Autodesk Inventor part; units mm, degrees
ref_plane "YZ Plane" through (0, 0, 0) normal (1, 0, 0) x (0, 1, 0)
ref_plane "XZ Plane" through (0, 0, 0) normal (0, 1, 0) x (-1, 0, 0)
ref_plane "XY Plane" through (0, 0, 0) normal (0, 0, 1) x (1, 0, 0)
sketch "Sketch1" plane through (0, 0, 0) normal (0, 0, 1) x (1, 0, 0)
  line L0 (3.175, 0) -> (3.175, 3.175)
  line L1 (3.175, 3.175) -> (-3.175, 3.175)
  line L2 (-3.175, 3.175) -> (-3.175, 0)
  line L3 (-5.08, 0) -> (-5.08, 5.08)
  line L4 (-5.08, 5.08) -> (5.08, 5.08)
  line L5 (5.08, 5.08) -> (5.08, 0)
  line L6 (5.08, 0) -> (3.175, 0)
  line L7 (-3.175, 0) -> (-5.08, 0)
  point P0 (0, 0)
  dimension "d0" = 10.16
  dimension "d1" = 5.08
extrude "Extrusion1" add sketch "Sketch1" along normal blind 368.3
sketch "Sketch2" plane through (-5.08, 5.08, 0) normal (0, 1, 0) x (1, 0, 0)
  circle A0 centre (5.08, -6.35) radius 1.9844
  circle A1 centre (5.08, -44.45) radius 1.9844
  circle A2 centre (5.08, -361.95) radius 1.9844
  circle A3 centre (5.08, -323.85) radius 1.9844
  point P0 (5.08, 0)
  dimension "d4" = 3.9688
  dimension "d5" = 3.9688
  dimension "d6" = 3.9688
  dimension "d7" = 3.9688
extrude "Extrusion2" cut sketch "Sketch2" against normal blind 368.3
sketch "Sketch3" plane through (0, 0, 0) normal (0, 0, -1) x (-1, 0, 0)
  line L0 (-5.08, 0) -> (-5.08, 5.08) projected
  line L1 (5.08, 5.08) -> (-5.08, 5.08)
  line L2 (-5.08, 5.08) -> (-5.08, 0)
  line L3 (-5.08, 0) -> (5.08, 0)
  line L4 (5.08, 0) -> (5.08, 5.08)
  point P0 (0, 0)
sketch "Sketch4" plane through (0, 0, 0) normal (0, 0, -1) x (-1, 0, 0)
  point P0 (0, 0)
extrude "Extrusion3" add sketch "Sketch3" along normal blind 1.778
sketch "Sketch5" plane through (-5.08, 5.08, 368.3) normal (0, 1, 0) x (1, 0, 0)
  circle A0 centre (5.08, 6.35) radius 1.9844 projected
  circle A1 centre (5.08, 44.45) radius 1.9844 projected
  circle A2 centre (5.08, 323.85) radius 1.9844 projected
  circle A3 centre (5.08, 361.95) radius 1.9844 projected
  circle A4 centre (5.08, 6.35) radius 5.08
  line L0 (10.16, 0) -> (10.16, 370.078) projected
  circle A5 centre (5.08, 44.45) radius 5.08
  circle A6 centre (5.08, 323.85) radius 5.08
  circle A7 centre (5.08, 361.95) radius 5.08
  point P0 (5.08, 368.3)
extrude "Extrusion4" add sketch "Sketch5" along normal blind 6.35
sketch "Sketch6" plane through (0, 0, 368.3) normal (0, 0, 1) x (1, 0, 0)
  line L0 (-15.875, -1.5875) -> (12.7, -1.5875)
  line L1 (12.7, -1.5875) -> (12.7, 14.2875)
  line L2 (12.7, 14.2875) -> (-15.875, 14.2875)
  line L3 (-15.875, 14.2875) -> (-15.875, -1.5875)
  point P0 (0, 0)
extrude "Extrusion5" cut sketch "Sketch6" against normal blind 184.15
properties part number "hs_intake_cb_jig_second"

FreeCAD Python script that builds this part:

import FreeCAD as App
import Part
import Sketcher
Q = App.Units.Quantity

doc = App.newDocument("Part")
body = doc.addObject("PartDesign::Body", "Body")

# Sketch on XY plane
sketch1 = body.newObject("Sketcher::SketchObject", "Sketch")
sketch1.AttachmentSupport = (doc.getObject("XY_Plane"), [""])
sketch1.MapMode = "FlatFace"
sketch1.addGeometry(Part.LineSegment(App.Vector(3.2, 3.2, 0), App.Vector(3.2, 0, 0)), False)
sketch1.addGeometry(Part.LineSegment(App.Vector(3.2, 0, 0), App.Vector(5.1, 0, 0)), False)
sketch1.addGeometry(Part.LineSegment(App.Vector(5.1, 0, 0), App.Vector(5.1, 5.1, 0)), False)
sketch1.addGeometry(Part.LineSegment(App.Vector(5.1, 5.1, 0), App.Vector(-5.1, 5.1, 0)), False)
sketch1.addGeometry(Part.LineSegment(App.Vector(-5.1, 5.1, 0), App.Vector(-5.1, 0, 0)), False)
sketch1.addGeometry(Part.LineSegment(App.Vector(-5.1, 0, 0), App.Vector(-3.2, 0, 0)), False)
sketch1.addGeometry(Part.LineSegment(App.Vector(-3.2, 0, 0), App.Vector(-3.2, 3.2, 0)), False)
sketch1.addGeometry(Part.LineSegment(App.Vector(-3.2, 3.2, 0), App.Vector(3.2, 3.2, 0)), False)
sketch1.addConstraint(Sketcher.Constraint("Coincident", 0, 2, 1, 1))
sketch1.addConstraint(Sketcher.Constraint("Coincident", 1, 2, 2, 1))
sketch1.addConstraint(Sketcher.Constraint("Coincident", 2, 2, 3, 1))
sketch1.addConstraint(Sketcher.Constraint("Coincident", 3, 2, 4, 1))
sketch1.addConstraint(Sketcher.Constraint("Coincident", 4, 2, 5, 1))
sketch1.addConstraint(Sketcher.Constraint("Coincident", 5, 2, 6, 1))
sketch1.addConstraint(Sketcher.Constraint("Coincident", 6, 2, 7, 1))
sketch1.addConstraint(Sketcher.Constraint("Coincident", 7, 2, 0, 1))
sketch1.addConstraint(Sketcher.Constraint("Vertical", 0))
sketch1.addConstraint(Sketcher.Constraint("Horizontal", 1))
sketch1.addConstraint(Sketcher.Constraint("Vertical", 2))
sketch1.addConstraint(Sketcher.Constraint("Horizontal", 3))
sketch1.addConstraint(Sketcher.Constraint("Vertical", 4))
sketch1.addConstraint(Sketcher.Constraint("Horizontal", 5))
sketch1.addConstraint(Sketcher.Constraint("Vertical", 6))
sketch1.addConstraint(Sketcher.Constraint("Horizontal", 7))
sketch1.addConstraint(Sketcher.Constraint("Symmetric", 1, 2, 4, 2, -1, 1))
sketch1.addConstraint(Sketcher.Constraint("Symmetric", 0, 2, 5, 2, -2))
sketch1.addConstraint(Sketcher.Constraint("DistanceX", 3, 2, 3, 1, Q("0.4 in")))
sketch1.addConstraint(Sketcher.Constraint("DistanceY", 2, 1, 2, 2, Q("0.2 in")))
sketch1.addConstraint(Sketcher.Constraint("DistanceX", 7, 1, 7, 2, Q("0.25 in")))
sketch1.addConstraint(Sketcher.Constraint("DistanceY", 0, 2, 0, 1, Q("0.125 in")))
pad1 = body.newObject("PartDesign::Pad", "Pad")
pad1.Profile = sketch1
pad1.Length = Q("14.5 in")

# Sketch on XZ plane
sketch2 = body.newObject("Sketcher::SketchObject", "Sketch001")
sketch2.AttachmentSupport = (doc.getObject("XZ_Plane"), [""])
sketch2.MapMode = "FlatFace"
sketch2.AttachmentOffset = App.Placement(App.Vector(0, 0, -0.2 * 25.4), App.Rotation())
sketch2.addGeometry(Part.Circle(App.Vector(0, 6.3, 0), App.Vector(0, 0, 1), 2), False)
sketch2.addGeometry(Part.Circle(App.Vector(0, 44.5, 0), App.Vector(0, 0, 1), 2), False)
sketch2.addGeometry(Part.Circle(App.Vector(0, 361.9, 0), App.Vector(0, 0, 1), 2), False)
sketch2.addGeometry(Part.Circle(App.Vector(0, 323.9, 0), App.Vector(0, 0, 1), 2), False)
sketch2.addConstraint(Sketcher.Constraint("Equal", 0, 1))
sketch2.addConstraint(Sketcher.Constraint("Equal", 1, 2))
sketch2.addConstraint(Sketcher.Constraint("Equal", 2, 3))
sketch2.addConstraint(Sketcher.Constraint("PointOnObject", 0, 3, -2))
sketch2.addConstraint(Sketcher.Constraint("PointOnObject", 1, 3, -2))
sketch2.addConstraint(Sketcher.Constraint("PointOnObject", 2, 3, -2))
sketch2.addConstraint(Sketcher.Constraint("PointOnObject", 3, 3, -2))
sketch2.addConstraint(Sketcher.Constraint("Diameter", 0, Q("0.156252 in")))
sketch2.addConstraint(Sketcher.Constraint("DistanceY", 0, 3, 2, 3, Q("14 in")))
sketch2.addConstraint(Sketcher.Constraint("DistanceY", 1, 3, 3, 3, Q("11 in")))
sketch2.addConstraint(Sketcher.Constraint("DistanceY", 0, 3, 1, 3, Q("1.5 in")))
sketch2.addConstraint(Sketcher.Constraint("DistanceY", -1, 1, 0, 3, Q("0.25 in")))
pocket1 = body.newObject("PartDesign::Pocket", "Pocket")
pocket1.Profile = sketch2
pocket1.Length = Q("14.5 in")
pocket1.Reversed = True

# Sketch on XY plane
sketch3 = body.newObject("Sketcher::SketchObject", "Sketch002")
sketch3.AttachmentSupport = (doc.getObject("XY_Plane"), [""])
sketch3.MapMode = "FlatFace"
sketch3.addGeometry(Part.LineSegment(App.Vector(5, 5, 0), App.Vector(5, 0, 0)), False)
sketch3.addGeometry(Part.LineSegment(App.Vector(5, 0, 0), App.Vector(-5, 0, 0)), False)
sketch3.addGeometry(Part.LineSegment(App.Vector(-5, 0, 0), App.Vector(-5, 5, 0)), False)
sketch3.addGeometry(Part.LineSegment(App.Vector(-5, 5, 0), App.Vector(5, 5, 0)), False)
sketch3.addConstraint(Sketcher.Constraint("Coincident", 0, 2, 1, 1))
sketch3.addConstraint(Sketcher.Constraint("Coincident", 1, 2, 2, 1))
sketch3.addConstraint(Sketcher.Constraint("Coincident", 2, 2, 3, 1))
sketch3.addConstraint(Sketcher.Constraint("Coincident", 3, 2, 0, 1))
sketch3.addConstraint(Sketcher.Constraint("Vertical", 0))
sketch3.addConstraint(Sketcher.Constraint("Horizontal", 1))
sketch3.addConstraint(Sketcher.Constraint("Vertical", 2))
sketch3.addConstraint(Sketcher.Constraint("Horizontal", 3))
sketch3.addConstraint(Sketcher.Constraint("Symmetric", 0, 2, 1, 2, -1, 1))
sketch3.addConstraint(Sketcher.Constraint("DistanceX", 1, 2, 1, 1, Q("0.4 in")))
sketch3.addConstraint(Sketcher.Constraint("DistanceY", 0, 2, 0, 1, Q("0.2 in")))
pad2 = body.newObject("PartDesign::Pad", "Pad001")
pad2.Profile = sketch3
pad2.Length = Q("0.07 in")
pad2.Reversed = True

# Sketch on XZ plane
sketch4 = body.newObject("Sketcher::SketchObject", "Sketch003")
sketch4.AttachmentSupport = (doc.getObject("XZ_Plane"), [""])
sketch4.MapMode = "FlatFace"
sketch4.AttachmentOffset = App.Placement(App.Vector(0, 0, -0.2 * 25.4), App.Rotation())
sketch4.addGeometry(Part.Circle(App.Vector(0, 361.9, 0), App.Vector(0, 0, 1), 5.1), False)
sketch4.addGeometry(Part.Circle(App.Vector(0, 361.9, 0), App.Vector(0, 0, 1), 2), False)
sketch4.addGeometry(Part.Circle(App.Vector(0, 323.9, 0), App.Vector(0, 0, 1), 5.1), False)
sketch4.addGeometry(Part.Circle(App.Vector(0, 323.9, 0), App.Vector(0, 0, 1), 2), False)
sketch4.addGeometry(Part.Circle(App.Vector(0, 44.5, 0), App.Vector(0, 0, 1), 5.1), False)
sketch4.addGeometry(Part.Circle(App.Vector(0, 44.5, 0), App.Vector(0, 0, 1), 2), False)
sketch4.addGeometry(Part.Circle(App.Vector(0, 6.3, 0), App.Vector(0, 0, 1), 5.1), False)
sketch4.addGeometry(Part.Circle(App.Vector(0, 6.3, 0), App.Vector(0, 0, 1), 2), False)
sketch4.addConstraint(Sketcher.Constraint("Coincident", 1, 3, 0, 3))
sketch4.addConstraint(Sketcher.Constraint("Coincident", 3, 3, 2, 3))
sketch4.addConstraint(Sketcher.Constraint("Coincident", 5, 3, 4, 3))
sketch4.addConstraint(Sketcher.Constraint("Coincident", 7, 3, 6, 3))
sketch4.addConstraint(Sketcher.Constraint("Equal", 0, 2))
sketch4.addConstraint(Sketcher.Constraint("Equal", 1, 3))
sketch4.addConstraint(Sketcher.Constraint("Equal", 2, 4))
sketch4.addConstraint(Sketcher.Constraint("Equal", 3, 5))
sketch4.addConstraint(Sketcher.Constraint("Equal", 4, 6))
sketch4.addConstraint(Sketcher.Constraint("Equal", 5, 7))
sketch4.addConstraint(Sketcher.Constraint("PointOnObject", 0, 3, -2))
sketch4.addConstraint(Sketcher.Constraint("PointOnObject", 2, 3, -2))
sketch4.addConstraint(Sketcher.Constraint("PointOnObject", 4, 3, -2))
sketch4.addConstraint(Sketcher.Constraint("PointOnObject", 6, 3, -2))
sketch4.addConstraint(Sketcher.Constraint("Diameter", 0, Q("0.4 in")))
sketch4.addConstraint(Sketcher.Constraint("Diameter", 1, Q("0.156252 in")))
sketch4.addConstraint(Sketcher.Constraint("DistanceY", 4, 3, 2, 3, Q("11 in")))
sketch4.addConstraint(Sketcher.Constraint("DistanceY", 6, 3, 0, 3, Q("14 in")))
sketch4.addConstraint(Sketcher.Constraint("DistanceY", 2, 3, 0, 3, Q("1.5 in")))
sketch4.addConstraint(Sketcher.Constraint("DistanceY", -1, 1, 0, 3, Q("14.25 in")))
pad3 = body.newObject("PartDesign::Pad", "Pad002")
pad3.Profile = sketch4
pad3.Length = Q("0.25 in")
pad3.Reversed = True

# Sketch on XY plane
sketch5 = body.newObject("Sketcher::SketchObject", "Sketch004")
sketch5.AttachmentSupport = (doc.getObject("XY_Plane"), [""])
sketch5.MapMode = "FlatFace"
sketch5.AttachmentOffset = App.Placement(App.Vector(0, 0, 14.5 * 25.4), App.Rotation())
sketch5.addGeometry(Part.LineSegment(App.Vector(-16, 14, 0), App.Vector(-16, -2, 0)), False)
sketch5.addGeometry(Part.LineSegment(App.Vector(-16, -2, 0), App.Vector(13, -2, 0)), False)
sketch5.addGeometry(Part.LineSegment(App.Vector(13, -2, 0), App.Vector(13, 14, 0)), False)
sketch5.addGeometry(Part.LineSegment(App.Vector(13, 14, 0), App.Vector(-16, 14, 0)), False)
sketch5.addConstraint(Sketcher.Constraint("Coincident", 0, 2, 1, 1))
sketch5.addConstraint(Sketcher.Constraint("Coincident", 1, 2, 2, 1))
sketch5.addConstraint(Sketcher.Constraint("Coincident", 2, 2, 3, 1))
sketch5.addConstraint(Sketcher.Constraint("Coincident", 3, 2, 0, 1))
sketch5.addConstraint(Sketcher.Constraint("Vertical", 0))
sketch5.addConstraint(Sketcher.Constraint("Horizontal", 1))
sketch5.addConstraint(Sketcher.Constraint("Vertical", 2))
sketch5.addConstraint(Sketcher.Constraint("Horizontal", 3))
sketch5.addConstraint(Sketcher.Constraint("DistanceX", -1, 1, 1, 2, Q("0.5 in")))
sketch5.addConstraint(Sketcher.Constraint("DistanceX", 1, 1, 1, 2, Q("1.125 in")))
sketch5.addConstraint(Sketcher.Constraint("DistanceY", 0, 2, 0, 1, Q("0.625 in")))
sketch5.addConstraint(Sketcher.Constraint("DistanceY", 0, 2, -1, 1, Q("0.0625 in")))
pocket2 = body.newObject("PartDesign::Pocket", "Pocket001")
pocket2.Profile = sketch5
pocket2.Length = Q("7.25 in")

doc.recompute()
